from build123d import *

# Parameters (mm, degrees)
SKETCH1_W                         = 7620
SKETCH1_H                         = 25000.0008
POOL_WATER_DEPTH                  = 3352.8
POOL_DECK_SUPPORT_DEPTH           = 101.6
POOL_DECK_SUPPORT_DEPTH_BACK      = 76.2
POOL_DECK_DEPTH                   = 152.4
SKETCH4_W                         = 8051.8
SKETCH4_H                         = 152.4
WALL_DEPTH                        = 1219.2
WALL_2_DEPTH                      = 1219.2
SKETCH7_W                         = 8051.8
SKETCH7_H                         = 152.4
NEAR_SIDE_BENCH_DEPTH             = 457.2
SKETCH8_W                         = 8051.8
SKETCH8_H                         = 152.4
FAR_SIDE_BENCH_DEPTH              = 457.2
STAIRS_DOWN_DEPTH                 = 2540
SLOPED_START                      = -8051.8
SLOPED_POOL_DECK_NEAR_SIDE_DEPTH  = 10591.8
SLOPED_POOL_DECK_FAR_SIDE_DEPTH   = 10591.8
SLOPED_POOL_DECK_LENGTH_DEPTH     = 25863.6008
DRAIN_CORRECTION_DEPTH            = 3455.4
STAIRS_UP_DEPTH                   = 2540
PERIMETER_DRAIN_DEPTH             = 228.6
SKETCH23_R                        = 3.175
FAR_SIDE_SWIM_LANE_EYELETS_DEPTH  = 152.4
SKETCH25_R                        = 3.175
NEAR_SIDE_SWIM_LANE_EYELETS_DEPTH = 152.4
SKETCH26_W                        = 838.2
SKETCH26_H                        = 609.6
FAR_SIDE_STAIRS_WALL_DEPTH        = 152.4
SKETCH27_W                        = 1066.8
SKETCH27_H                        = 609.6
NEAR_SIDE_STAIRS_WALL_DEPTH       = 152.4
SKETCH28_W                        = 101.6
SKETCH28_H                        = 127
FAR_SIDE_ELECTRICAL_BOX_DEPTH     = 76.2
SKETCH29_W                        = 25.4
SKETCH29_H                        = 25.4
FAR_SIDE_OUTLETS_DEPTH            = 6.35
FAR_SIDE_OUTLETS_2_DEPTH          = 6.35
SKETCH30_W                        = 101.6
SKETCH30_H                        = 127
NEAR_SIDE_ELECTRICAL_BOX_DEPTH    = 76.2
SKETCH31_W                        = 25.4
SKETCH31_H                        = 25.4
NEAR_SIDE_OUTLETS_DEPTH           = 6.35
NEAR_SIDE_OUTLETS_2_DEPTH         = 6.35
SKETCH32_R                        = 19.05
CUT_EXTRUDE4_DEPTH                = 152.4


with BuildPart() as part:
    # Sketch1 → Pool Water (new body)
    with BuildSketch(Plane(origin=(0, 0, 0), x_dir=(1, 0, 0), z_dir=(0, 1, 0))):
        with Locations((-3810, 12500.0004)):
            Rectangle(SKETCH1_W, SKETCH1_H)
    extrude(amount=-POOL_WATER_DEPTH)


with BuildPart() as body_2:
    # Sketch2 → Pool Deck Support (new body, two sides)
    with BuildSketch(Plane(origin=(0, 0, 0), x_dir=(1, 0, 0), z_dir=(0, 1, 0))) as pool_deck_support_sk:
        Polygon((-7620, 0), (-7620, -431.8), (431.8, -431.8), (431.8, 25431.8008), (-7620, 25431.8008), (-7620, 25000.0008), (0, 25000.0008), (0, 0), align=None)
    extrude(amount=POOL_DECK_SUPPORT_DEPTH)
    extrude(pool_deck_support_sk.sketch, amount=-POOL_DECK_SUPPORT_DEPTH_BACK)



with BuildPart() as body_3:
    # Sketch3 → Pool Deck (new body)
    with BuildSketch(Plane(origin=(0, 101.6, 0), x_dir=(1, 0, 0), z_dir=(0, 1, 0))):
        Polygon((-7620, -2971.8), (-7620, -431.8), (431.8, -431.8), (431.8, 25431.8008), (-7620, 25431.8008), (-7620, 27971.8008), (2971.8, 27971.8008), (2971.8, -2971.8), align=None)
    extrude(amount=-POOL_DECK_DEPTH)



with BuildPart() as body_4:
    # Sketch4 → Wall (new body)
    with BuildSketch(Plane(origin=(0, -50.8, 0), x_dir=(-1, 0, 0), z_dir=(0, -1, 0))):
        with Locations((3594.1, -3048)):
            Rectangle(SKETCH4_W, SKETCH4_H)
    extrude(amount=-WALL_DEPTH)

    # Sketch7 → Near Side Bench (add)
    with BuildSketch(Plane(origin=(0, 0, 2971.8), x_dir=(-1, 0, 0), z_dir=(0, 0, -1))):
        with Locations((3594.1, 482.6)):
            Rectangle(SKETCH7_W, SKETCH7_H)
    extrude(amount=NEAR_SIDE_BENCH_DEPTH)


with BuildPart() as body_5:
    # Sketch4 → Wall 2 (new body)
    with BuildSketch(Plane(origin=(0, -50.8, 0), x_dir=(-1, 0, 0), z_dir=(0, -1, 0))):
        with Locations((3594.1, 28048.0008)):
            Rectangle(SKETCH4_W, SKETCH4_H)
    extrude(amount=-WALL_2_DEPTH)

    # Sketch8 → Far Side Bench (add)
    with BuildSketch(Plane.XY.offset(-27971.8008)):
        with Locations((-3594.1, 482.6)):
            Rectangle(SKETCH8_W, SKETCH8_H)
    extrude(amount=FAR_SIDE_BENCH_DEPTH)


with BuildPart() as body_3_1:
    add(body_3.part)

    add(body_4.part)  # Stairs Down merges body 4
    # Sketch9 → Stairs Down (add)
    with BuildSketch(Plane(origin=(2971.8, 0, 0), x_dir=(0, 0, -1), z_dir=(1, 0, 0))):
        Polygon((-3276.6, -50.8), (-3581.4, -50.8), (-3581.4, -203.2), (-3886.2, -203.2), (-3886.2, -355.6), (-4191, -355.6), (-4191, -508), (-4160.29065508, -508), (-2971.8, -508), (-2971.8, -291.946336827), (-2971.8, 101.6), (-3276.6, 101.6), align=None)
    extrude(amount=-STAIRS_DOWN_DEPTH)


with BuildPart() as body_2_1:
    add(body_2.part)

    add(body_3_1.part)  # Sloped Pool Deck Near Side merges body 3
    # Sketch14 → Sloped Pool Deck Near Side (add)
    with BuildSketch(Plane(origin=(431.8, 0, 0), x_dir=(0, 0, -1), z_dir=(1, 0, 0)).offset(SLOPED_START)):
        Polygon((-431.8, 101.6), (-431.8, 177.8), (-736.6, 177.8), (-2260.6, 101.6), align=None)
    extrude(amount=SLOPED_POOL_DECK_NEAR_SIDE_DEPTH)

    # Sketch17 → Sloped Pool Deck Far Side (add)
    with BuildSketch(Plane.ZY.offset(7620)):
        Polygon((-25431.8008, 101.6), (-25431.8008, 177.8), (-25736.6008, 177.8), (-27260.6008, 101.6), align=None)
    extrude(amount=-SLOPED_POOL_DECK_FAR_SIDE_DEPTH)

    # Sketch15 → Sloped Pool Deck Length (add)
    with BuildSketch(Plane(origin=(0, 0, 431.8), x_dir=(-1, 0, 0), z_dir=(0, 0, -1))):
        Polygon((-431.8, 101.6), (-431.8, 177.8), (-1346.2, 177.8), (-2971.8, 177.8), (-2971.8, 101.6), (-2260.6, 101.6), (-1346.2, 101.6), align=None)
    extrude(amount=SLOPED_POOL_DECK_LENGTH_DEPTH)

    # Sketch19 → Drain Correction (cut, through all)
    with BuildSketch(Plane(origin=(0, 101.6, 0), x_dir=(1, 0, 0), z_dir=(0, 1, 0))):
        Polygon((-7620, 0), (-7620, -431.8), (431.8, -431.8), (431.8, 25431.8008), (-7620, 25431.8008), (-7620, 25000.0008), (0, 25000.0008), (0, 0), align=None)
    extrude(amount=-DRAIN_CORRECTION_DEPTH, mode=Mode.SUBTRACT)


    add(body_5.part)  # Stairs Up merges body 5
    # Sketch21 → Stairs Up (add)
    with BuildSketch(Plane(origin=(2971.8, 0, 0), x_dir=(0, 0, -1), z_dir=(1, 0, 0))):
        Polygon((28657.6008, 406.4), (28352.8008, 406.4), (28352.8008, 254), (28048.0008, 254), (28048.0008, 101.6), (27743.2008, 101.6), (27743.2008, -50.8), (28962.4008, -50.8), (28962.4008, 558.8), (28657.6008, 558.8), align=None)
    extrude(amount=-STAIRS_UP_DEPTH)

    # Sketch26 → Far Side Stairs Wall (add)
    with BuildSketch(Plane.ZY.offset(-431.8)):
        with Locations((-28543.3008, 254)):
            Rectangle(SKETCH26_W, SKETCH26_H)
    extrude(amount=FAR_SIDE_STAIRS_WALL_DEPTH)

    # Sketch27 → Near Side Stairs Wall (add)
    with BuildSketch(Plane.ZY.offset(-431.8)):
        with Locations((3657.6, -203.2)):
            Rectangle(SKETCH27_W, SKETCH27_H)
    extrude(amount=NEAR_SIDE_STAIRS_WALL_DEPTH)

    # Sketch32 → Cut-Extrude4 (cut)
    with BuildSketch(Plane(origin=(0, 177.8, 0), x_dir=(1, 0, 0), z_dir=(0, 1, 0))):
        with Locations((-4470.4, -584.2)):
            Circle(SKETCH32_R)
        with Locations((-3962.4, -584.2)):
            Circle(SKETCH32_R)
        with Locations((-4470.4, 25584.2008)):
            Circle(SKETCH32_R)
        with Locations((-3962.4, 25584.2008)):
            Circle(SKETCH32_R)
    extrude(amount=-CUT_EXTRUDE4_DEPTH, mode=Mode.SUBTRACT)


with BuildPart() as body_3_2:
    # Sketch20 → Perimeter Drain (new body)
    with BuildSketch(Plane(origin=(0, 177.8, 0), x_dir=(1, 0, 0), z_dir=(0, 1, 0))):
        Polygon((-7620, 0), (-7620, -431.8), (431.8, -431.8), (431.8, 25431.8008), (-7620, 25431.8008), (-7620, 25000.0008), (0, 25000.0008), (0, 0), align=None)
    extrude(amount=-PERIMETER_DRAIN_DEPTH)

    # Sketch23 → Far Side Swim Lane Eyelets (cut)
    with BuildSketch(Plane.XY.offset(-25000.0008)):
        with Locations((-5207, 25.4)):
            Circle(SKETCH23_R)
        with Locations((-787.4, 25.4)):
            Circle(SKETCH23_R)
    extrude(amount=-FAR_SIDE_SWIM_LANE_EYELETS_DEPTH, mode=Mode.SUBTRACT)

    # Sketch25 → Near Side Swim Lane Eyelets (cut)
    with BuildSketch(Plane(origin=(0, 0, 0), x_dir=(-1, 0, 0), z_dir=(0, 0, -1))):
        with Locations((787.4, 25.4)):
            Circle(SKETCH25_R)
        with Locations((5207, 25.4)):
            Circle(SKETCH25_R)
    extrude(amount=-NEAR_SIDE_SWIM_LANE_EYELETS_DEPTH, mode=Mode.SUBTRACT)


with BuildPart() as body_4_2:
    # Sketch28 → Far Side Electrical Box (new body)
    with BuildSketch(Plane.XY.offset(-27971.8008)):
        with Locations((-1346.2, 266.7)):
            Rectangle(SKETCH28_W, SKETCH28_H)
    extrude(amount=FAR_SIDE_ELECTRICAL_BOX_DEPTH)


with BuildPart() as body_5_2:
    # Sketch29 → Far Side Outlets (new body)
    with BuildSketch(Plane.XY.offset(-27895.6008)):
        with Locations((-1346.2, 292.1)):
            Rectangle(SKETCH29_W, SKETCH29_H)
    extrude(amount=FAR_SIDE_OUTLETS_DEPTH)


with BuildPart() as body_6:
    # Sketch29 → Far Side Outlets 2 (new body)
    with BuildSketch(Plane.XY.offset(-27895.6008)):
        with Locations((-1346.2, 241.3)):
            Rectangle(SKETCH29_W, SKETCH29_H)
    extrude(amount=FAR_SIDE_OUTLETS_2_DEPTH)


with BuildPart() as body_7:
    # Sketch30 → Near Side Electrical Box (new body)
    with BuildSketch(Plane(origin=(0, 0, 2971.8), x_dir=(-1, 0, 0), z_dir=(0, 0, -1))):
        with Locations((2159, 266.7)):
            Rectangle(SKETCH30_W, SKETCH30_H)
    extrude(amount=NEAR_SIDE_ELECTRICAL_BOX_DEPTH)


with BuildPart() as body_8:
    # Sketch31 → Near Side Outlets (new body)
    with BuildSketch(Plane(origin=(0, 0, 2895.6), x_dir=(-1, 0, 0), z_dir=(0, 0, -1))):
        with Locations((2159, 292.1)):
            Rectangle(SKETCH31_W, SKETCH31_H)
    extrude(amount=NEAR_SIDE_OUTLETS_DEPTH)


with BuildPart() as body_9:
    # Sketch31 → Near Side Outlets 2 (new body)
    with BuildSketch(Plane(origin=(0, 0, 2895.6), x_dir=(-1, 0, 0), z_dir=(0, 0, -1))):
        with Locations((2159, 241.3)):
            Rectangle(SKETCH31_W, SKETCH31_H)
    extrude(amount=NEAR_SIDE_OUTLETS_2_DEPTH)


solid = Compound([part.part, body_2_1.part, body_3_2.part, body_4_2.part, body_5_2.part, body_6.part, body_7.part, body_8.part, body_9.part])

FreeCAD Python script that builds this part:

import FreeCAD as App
import Part
import Sketcher
from FreeCAD import Vector
Q = App.Units.Quantity


def add_polygon(sketch, points):
    """Adds a closed chain of lines whose ends are joined by coincident constraints."""
    first, n = sketch.GeometryCount, len(points)
    for a, b in zip(points, points[1:] + points[:1]):
        sketch.addGeometry(Part.LineSegment(App.Vector(*a, 0), App.Vector(*b, 0)), False)
    for i in range(n):
        sketch.addConstraint(Sketcher.Constraint("Coincident", first + i, 2, first + (i + 1) % n, 1))

doc = App.newDocument("Part")
body = doc.addObject("PartDesign::Body", "Body")

# Sketch on XZ plane
sketch1 = body.newObject("Sketcher::SketchObject", "Sketch")
sketch1.AttachmentSupport = (doc.getObject("XZ_Plane"), [""])
sketch1.MapMode = "FlatFace"
add_polygon(sketch1, [(-7620, -25000.0008), (-7620, 0), (0, 0), (0, -25000.0008)])  # lines 0-3
sketch1.addConstraint([
    Sketcher.Constraint("Vertical", 0),
    Sketcher.Constraint("Horizontal", 1),
    Sketcher.Constraint("Vertical", 2),
    Sketcher.Constraint("Horizontal", 3),
    Sketcher.Constraint("Coincident", 1, 2, -1, 1),
    Sketcher.Constraint("DistanceX", 1, 1, 1, 2, Q("300 in")),
    Sketcher.Constraint("DistanceY", 0, 1, 0, 2, Q("984.252 in")),
])
pad1 = body.newObject("PartDesign::Pad", "Pad")
pad1.Profile = sketch1
pad1.Length = Q("132 in")
body2 = doc.addObject("PartDesign::Body", "Body001")

# Sketch on XZ plane
sketch2 = body2.newObject("Sketcher::SketchObject", "Sketch001")
sketch2.AttachmentSupport = (doc.getObject("XZ_Plane001"), [""])
sketch2.MapMode = "FlatFace"
add_polygon(sketch2, [(-7620, 0), (-7620, 432), (432, 432), (432, -25432), (-7620, -25432), (-7620, -25000), (0, -25000), (0, 0)])  # lines 0-7
sketch2.addConstraint([
    Sketcher.Constraint("Vertical", 0),
    Sketcher.Constraint("Horizontal", 1),
    Sketcher.Constraint("Vertical", 2),
    Sketcher.Constraint("Horizontal", 3),
    Sketcher.Constraint("Vertical", 4),
    Sketcher.Constraint("Horizontal", 5),
    Sketcher.Constraint("Vertical", 6),
    Sketcher.Constraint("Horizontal", 7),
    Sketcher.Constraint("Coincident", 6, 2, -1, 1),
    Sketcher.Constraint("Vertical", 0, 2, 3, 2),
    Sketcher.Constraint("Equal", 0, 4),
    Sketcher.Constraint("DistanceX", 1, 1, 1, 2, Q("317 in")),
    Sketcher.Constraint("DistanceX", 5, 1, 5, 2, Q("300 in")),
    Sketcher.Constraint("DistanceY", 0, 1, 0, 2, Q("17 in")),
    Sketcher.Constraint("DistanceY", 2, 2, 2, 1, Q("1018.252 in")),
])
pad2 = body2.newObject("PartDesign::Pad", "Pad001")
pad2.Profile = sketch2
pad2.Type = "TwoLengths"
pad2.Length = Q("4 in")
pad2.Length2 = Q("3 in")
pad2.Reversed = True
body3 = doc.addObject("PartDesign::Body", "Body002")

# Sketch on XZ plane
sketch3 = body3.newObject("Sketcher::SketchObject", "Sketch002")
sketch3.AttachmentSupport = (doc.getObject("XZ_Plane002"), [""])
sketch3.MapMode = "FlatFace"
sketch3.AttachmentOffset = App.Placement(Vector(0, 0, -4 * 25.4), App.Rotation())
add_polygon(sketch3, [(-7620, 432), (-7620, 2972), (2972, 2972), (2972, -27972), (-7620, -27972), (-7620, -25432), (432, -25432), (432, 432)])  # lines 0-7
sketch3.addConstraint([
    Sketcher.Constraint("Vertical", 0),
    Sketcher.Constraint("Horizontal", 1),
    Sketcher.Constraint("Vertical", 2),
    Sketcher.Constraint("Horizontal", 3),
    Sketcher.Constraint("Vertical", 4),
    Sketcher.Constraint("Horizontal", 5),
    Sketcher.Constraint("Vertical", 6),
    Sketcher.Constraint("Horizontal", 7),
    Sketcher.Constraint("Vertical", 0, 2, 3, 2),
    Sketcher.Constraint("Equal", 0, 4),
    Sketcher.Constraint("DistanceX", 1, 1, 1, 2, Q("417 in")),
    Sketcher.Constraint("DistanceX", 5, 1, 5, 2, Q("317 in")),
    Sketcher.Constraint("DistanceY", 0, 1, 0, 2, Q("100 in")),
    Sketcher.Constraint("DistanceX", 0, 2, -1, 1, Q("300 in")),
    Sketcher.Constraint("DistanceY", -1, 1, 0, 2, Q("117 in")),
    Sketcher.Constraint("DistanceY", 2, 2, 2, 1, Q("1218.252 in")),
])
pad3 = body3.newObject("PartDesign::Pad", "Pad002")
pad3.Profile = sketch3
pad3.Length = Q("6 in")
body4 = doc.addObject("PartDesign::Body", "Body003")

# Sketch on XZ plane
sketch4 = body4.newObject("Sketcher::SketchObject", "Sketch003")
sketch4.AttachmentSupport = (doc.getObject("XZ_Plane003"), [""])
sketch4.MapMode = "FlatFace"
sketch4.AttachmentOffset = App.Placement(Vector(0, 0, 2 * 25.4), App.Rotation())
add_polygon(sketch4, [(432, 2972), (432, 3124), (-7620, 3124), (-7620, 2972)])  # lines 0-3
sketch4.addConstraint([
    Sketcher.Constraint("Vertical", 0),
    Sketcher.Constraint("Horizontal", 1),
    Sketcher.Constraint("Vertical", 2),
    Sketcher.Constraint("Horizontal", 3),
    Sketcher.Constraint("DistanceX", 1, 2, 1, 1, Q("317 in")),
    Sketcher.Constraint("DistanceY", 0, 1, 0, 2, Q("6 in")),
    Sketcher.Constraint("DistanceX", -1, 1, 0, 2, Q("17 in")),
    Sketcher.Constraint("DistanceY", -1, 1, 0, 2, Q("123 in")),
])
pad4 = body4.newObject("PartDesign::Pad", "Pad003")
pad4.Profile = sketch4
pad4.Length = Q("48 in")
pad4.Reversed = True

# Sketch on XY plane
sketch5 = body4.newObject("Sketcher::SketchObject", "Sketch004")
sketch5.AttachmentSupport = (doc.getObject("XY_Plane003"), [""])
sketch5.MapMode = "FlatFace"
sketch5.AttachmentOffset = App.Placement(Vector(0, 0, 117 * 25.4), App.Rotation())
add_polygon(sketch5, [(432, 559), (432, 406), (-7620, 406), (-7620, 559)])  # lines 0-3
sketch5.addConstraint([
    Sketcher.Constraint("Vertical", 0),
    Sketcher.Constraint("Horizontal", 1),
    Sketcher.Constraint("Vertical", 2),
    Sketcher.Constraint("Horizontal", 3),
    Sketcher.Constraint("DistanceX", 1, 2, 1, 1, Q("317 in")),
    Sketcher.Constraint("DistanceY", 0, 2, 0, 1, Q("6 in")),
    Sketcher.Constraint("DistanceX", -1, 1, 0, 2, Q("17 in")),
    Sketcher.Constraint("DistanceY", -1, 1, 0, 2, Q("16 in")),
])
pad5 = body4.newObject("PartDesign::Pad", "Pad004")
pad5.Profile = sketch5
pad5.Length = Q("18 in")
pad5.Reversed = True
body5 = doc.addObject("PartDesign::Body", "Body004")

# Sketch on XZ plane
sketch6 = body5.newObject("Sketcher::SketchObject", "Sketch005")
sketch6.AttachmentSupport = (doc.getObject("XZ_Plane004"), [""])
sketch6.MapMode = "FlatFace"
sketch6.AttachmentOffset = App.Placement(Vector(0, 0, 2 * 25.4), App.Rotation())
add_polygon(sketch6, [(432, -28124), (432, -27972), (-7620, -27972), (-7620, -28124)])  # lines 0-3
sketch6.addConstraint([
    Sketcher.Constraint("Vertical", 0),
    Sketcher.Constraint("Horizontal", 1),
    Sketcher.Constraint("Vertical", 2),
    Sketcher.Constraint("Horizontal", 3),
    Sketcher.Constraint("DistanceX", 1, 2, 1, 1, Q("317 in")),
    Sketcher.Constraint("DistanceY", 0, 1, 0, 2, Q("6 in")),
    Sketcher.Constraint("DistanceX", -1, 1, 0, 2, Q("17 in")),
    Sketcher.Constraint("DistanceY", 0, 2, -1, 1, Q("1101.252 in")),
])
pad6 = body5.newObject("PartDesign::Pad", "Pad005")
pad6.Profile = sketch6
pad6.Length = Q("48 in")
pad6.Reversed = True

# Sketch on XY plane
sketch7 = body5.newObject("Sketcher::SketchObject", "Sketch006")
sketch7.AttachmentSupport = (doc.getObject("XY_Plane004"), [""])
sketch7.MapMode = "FlatFace"
sketch7.AttachmentOffset = App.Placement(Vector(0, 0, -1101.252 * 25.4), App.Rotation())
add_polygon(sketch7, [(-7620, 559), (-7620, 406), (432, 406), (432, 559)])  # lines 0-3
sketch7.addConstraint([
    Sketcher.Constraint("Vertical", 0),
    Sketcher.Constraint("Horizontal", 1),
    Sketcher.Constraint("Vertical", 2),
    Sketcher.Constraint("Horizontal", 3),
    Sketcher.Constraint("DistanceX", 1, 1, 1, 2, Q("317 in")),
    Sketcher.Constraint("DistanceY", 0, 2, 0, 1, Q("6 in")),
    Sketcher.Constraint("DistanceX", 0, 2, -1, 1, Q("300 in")),
    Sketcher.Constraint("DistanceY", -1, 1, 0, 2, Q("16 in")),
])
pad7 = body5.newObject("PartDesign::Pad", "Pad006")
pad7.Profile = sketch7
pad7.Length = Q("18 in")
doc.recompute()

boolean = body3.newObject("PartDesign::Boolean", "Boolean")
boolean.Type = "Fuse"
boolean.addObjects([body4])

# Sketch on YZ plane
sketch8 = body3.newObject("Sketcher::SketchObject", "Sketch007")
sketch8.AttachmentSupport = (doc.getObject("YZ_Plane002"), [""])
sketch8.MapMode = "FlatFace"
sketch8.AttachmentOffset = App.Placement(Vector(0, 0, 117 * 25.4), App.Rotation())
add_polygon(sketch8, [(-51, 3277), (-51, 3581), (-203, 3581), (-203, 3886), (-356, 3886), (-356, 4191), (-508, 4191), (-508, 2972), (102, 2972), (102, 3277)])  # lines 0-9
sketch8.addConstraint([
    Sketcher.Constraint("Vertical", 0),
    Sketcher.Constraint("Horizontal", 1),
    Sketcher.Constraint("Vertical", 2),
    Sketcher.Constraint("Horizontal", 3),
    Sketcher.Constraint("Vertical", 4),
    Sketcher.Constraint("Horizontal", 5),
    Sketcher.Constraint("Vertical", 6),
    Sketcher.Constraint("Horizontal", 7),
    Sketcher.Constraint("Vertical", 8),
    Sketcher.Constraint("Horizontal", 9),
    Sketcher.Constraint("Equal", 1, 3),
    Sketcher.Constraint("Equal", 3, 5),
    Sketcher.Constraint("Equal", 5, 9),
    Sketcher.Constraint("Equal", 0, 2),
    Sketcher.Constraint("Equal", 2, 4),
    Sketcher.Constraint("Equal", 4, 8),
    Sketcher.Constraint("DistanceX", 1, 2, 1, 1, Q("6 in")),
    Sketcher.Constraint("DistanceY", 0, 1, 0, 2, Q("12 in")),
    Sketcher.Constraint("DistanceX", 0, 2, -1, 1, Q("2 in")),
    Sketcher.Constraint("DistanceY", -1, 1, 0, 2, Q("141 in")),
])
pad8 = body3.newObject("PartDesign::Pad", "Pad007")
pad8.Profile = sketch8
pad8.Length = Q("100 in")
pad8.Reversed = True
doc.recompute()

boolean2 = body2.newObject("PartDesign::Boolean", "Boolean001")
boolean2.Type = "Fuse"
boolean2.addObjects([body3])

# Sketch on YZ plane
sketch9 = body2.newObject("Sketcher::SketchObject", "Sketch008")
sketch9.AttachmentSupport = (doc.getObject("YZ_Plane001"), [""])
sketch9.MapMode = "FlatFace"
sketch9.AttachmentOffset = App.Placement(Vector(0, 0, -300 * 25.4), App.Rotation())
add_polygon(sketch9, [(102, 432), (178, 432), (178, 737), (102, 2261)])  # lines 0-3
sketch9.addConstraint([
    Sketcher.Constraint("Horizontal", 0),
    Sketcher.Constraint("Vertical", 1),
    Sketcher.Constraint("Vertical", 3),
    Sketcher.Constraint("DistanceX", 0, 1, 0, 2, Q("3 in")),
    Sketcher.Constraint("DistanceY", 1, 1, 1, 2, Q("12 in")),
    Sketcher.Constraint("DistanceY", 3, 2, 3, 1, Q("72 in")),
    Sketcher.Constraint("DistanceX", -1, 1, 0, 2, Q("7 in")),
    Sketcher.Constraint("DistanceY", -1, 1, 0, 2, Q("17 in")),
])
pad9 = body2.newObject("PartDesign::Pad", "Pad008")
pad9.Profile = sketch9
pad9.Length = Q("417 in")

# Sketch on YZ plane
sketch10 = body2.newObject("Sketcher::SketchObject", "Sketch009")
sketch10.AttachmentSupport = (doc.getObject("YZ_Plane001"), [""])
sketch10.MapMode = "FlatFace"
sketch10.AttachmentOffset = App.Placement(Vector(0, 0, -300 * 25.4), App.Rotation())
add_polygon(sketch10, [(102, -25432), (178, -25432), (178, -25737), (102, -27261)])  # lines 0-3
sketch10.addConstraint([
    Sketcher.Constraint("Horizontal", 0),
    Sketcher.Constraint("Vertical", 1),
    Sketcher.Constraint("Vertical", 3),
    Sketcher.Constraint("DistanceX", 0, 1, 0, 2, Q("3 in")),
    Sketcher.Constraint("DistanceY", 1, 2, 1, 1, Q("12 in")),
    Sketcher.Constraint("DistanceY", 3, 1, 3, 2, Q("72 in")),
    Sketcher.Constraint("DistanceX", -1, 1, 0, 2, Q("7 in")),
    Sketcher.Constraint("DistanceY", 0, 2, -1, 1, Q("1001.252 in")),
])
pad10 = body2.newObject("PartDesign::Pad", "Pad009")
pad10.Profile = sketch10
pad10.Length = Q("417 in")

# Sketch on XY plane
sketch11 = body2.newObject("Sketcher::SketchObject", "Sketch010")
sketch11.AttachmentSupport = (doc.getObject("XY_Plane001"), [""])
sketch11.MapMode = "FlatFace"
sketch11.AttachmentOffset = App.Placement(Vector(0, 0, 17 * 25.4), App.Rotation())
add_polygon(sketch11, [(432, 102), (432, 178), (2972, 178), (2972, 102)])  # lines 0-3
sketch11.addConstraint([
    Sketcher.Constraint("Vertical", 0),
    Sketcher.Constraint("Horizontal", 1),
    Sketcher.Constraint("Vertical", 2),
    Sketcher.Constraint("Horizontal", 3),
    Sketcher.Constraint("DistanceX", 1, 1, 1, 2, Q("100 in")),
    Sketcher.Constraint("DistanceY", 0, 1, 0, 2, Q("3 in")),
    Sketcher.Constraint("DistanceX", -1, 1, 0, 2, Q("17 in")),
    Sketcher.Constraint("DistanceY", -1, 1, 0, 2, Q("7 in")),
])
pad11 = body2.newObject("PartDesign::Pad", "Pad010")
pad11.Profile = sketch11
pad11.Length = Q("1018.252 in")
pad11.Reversed = True

# Sketch on XZ plane
sketch12 = body2.newObject("Sketcher::SketchObject", "Sketch011")
sketch12.AttachmentSupport = (doc.getObject("XZ_Plane001"), [""])
sketch12.MapMode = "FlatFace"
sketch12.AttachmentOffset = App.Placement(Vector(0, 0, -4 * 25.4), App.Rotation())
add_polygon(sketch12, [(-7620, 0), (-7620, 432), (432, 432), (432, -25432), (-7620, -25432), (-7620, -25000), (0, -25000), (0, 0)])  # lines 0-7
sketch12.addConstraint([
    Sketcher.Constraint("Vertical", 0),
    Sketcher.Constraint("Horizontal", 1),
    Sketcher.Constraint("Vertical", 2),
    Sketcher.Constraint("Horizontal", 3),
    Sketcher.Constraint("Vertical", 4),
    Sketcher.Constraint("Horizontal", 5),
    Sketcher.Constraint("Vertical", 6),
    Sketcher.Constraint("Horizontal", 7),
    Sketcher.Constraint("Coincident", 6, 2, -1, 1),
    Sketcher.Constraint("Vertical", 0, 2, 3, 2),
    Sketcher.Constraint("Equal", 0, 4),
    Sketcher.Constraint("DistanceX", 1, 1, 1, 2, Q("317 in")),
    Sketcher.Constraint("DistanceX", 5, 1, 5, 2, Q("300 in")),
    Sketcher.Constraint("DistanceY", 0, 1, 0, 2, Q("17 in")),
    Sketcher.Constraint("DistanceY", 2, 2, 2, 1, Q("1018.252 in")),
])
pocket1 = body2.newObject("PartDesign::Pocket", "Pocket")
pocket1.Profile = sketch12
pocket1.Type = "ThroughAll"
pocket1.Reversed = True
doc.recompute()

boolean3 = body2.newObject("PartDesign::Boolean", "Boolean002")
boolean3.Type = "Fuse"
boolean3.addObjects([body5])

# Sketch on YZ plane
sketch13 = body2.newObject("Sketcher::SketchObject", "Sketch012")
sketch13.AttachmentSupport = (doc.getObject("YZ_Plane001"), [""])
sketch13.MapMode = "FlatFace"
sketch13.AttachmentOffset = App.Placement(Vector(0, 0, 117 * 25.4), App.Rotation())
add_polygon(sketch13, [(406, -28658), (406, -28353), (254, -28353), (254, -28048), (102, -28048), (102, -27743), (-51, -27743), (-51, -28962), (559, -28962), (559, -28658)])  # lines 0-9
sketch13.addConstraint([
    Sketcher.Constraint("Vertical", 0),
    Sketcher.Constraint("Horizontal", 1),
    Sketcher.Constraint("Vertical", 2),
    Sketcher.Constraint("Horizontal", 3),
    Sketcher.Constraint("Vertical", 4),
    Sketcher.Constraint("Horizontal", 5),
    Sketcher.Constraint("Vertical", 6),
    Sketcher.Constraint("Horizontal", 7),
    Sketcher.Constraint("Vertical", 8),
    Sketcher.Constraint("Horizontal", 9),
    Sketcher.Constraint("Equal", 1, 3),
    Sketcher.Constraint("Equal", 3, 5),
    Sketcher.Constraint("Equal", 5, 9),
    Sketcher.Constraint("Equal", 0, 2),
    Sketcher.Constraint("Equal", 2, 4),
    Sketcher.Constraint("Equal", 4, 8),
    Sketcher.Constraint("DistanceX", 1, 2, 1, 1, Q("6 in")),
    Sketcher.Constraint("DistanceY", 0, 1, 0, 2, Q("12 in")),
    Sketcher.Constraint("DistanceX", -1, 1, 0, 2, Q("16 in")),
    Sketcher.Constraint("DistanceY", 0, 2, -1, 1, Q("1116.252 in")),
])
pad12 = body2.newObject("PartDesign::Pad", "Pad011")
pad12.Profile = sketch13
pad12.Length = Q("100 in")
pad12.Reversed = True

# Sketch on YZ plane
sketch14 = body2.newObject("Sketcher::SketchObject", "Sketch013")
sketch14.AttachmentSupport = (doc.getObject("YZ_Plane001"), [""])
sketch14.MapMode = "FlatFace"
sketch14.AttachmentOffset = App.Placement(Vector(0, 0, 17 * 25.4), App.Rotation())
add_polygon(sketch14, [(559, -28962), (-51, -28962), (-51, -28124), (559, -28124)])  # lines 0-3
sketch14.addConstraint([
    Sketcher.Constraint("Horizontal", 0),
    Sketcher.Constraint("Vertical", 1),
    Sketcher.Constraint("Horizontal", 2),
    Sketcher.Constraint("Vertical", 3),
    Sketcher.Constraint("DistanceX", 0, 2, 0, 1, Q("24 in")),
    Sketcher.Constraint("DistanceY", 1, 1, 1, 2, Q("33 in")),
    Sketcher.Constraint("DistanceX", 0, 2, -1, 1, Q("2 in")),
    Sketcher.Constraint("DistanceY", 0, 2, -1, 1, Q("1140.252 in")),
])
pad13 = body2.newObject("PartDesign::Pad", "Pad012")
pad13.Profile = sketch14
pad13.Length = Q("6 in")
pad13.Reversed = True

# Sketch on YZ plane
sketch15 = body2.newObject("Sketcher::SketchObject", "Sketch014")
sketch15.AttachmentSupport = (doc.getObject("YZ_Plane001"), [""])
sketch15.MapMode = "FlatFace"
sketch15.AttachmentOffset = App.Placement(Vector(0, 0, 17 * 25.4), App.Rotation())
add_polygon(sketch15, [(102, 3124), (-508, 3124), (-508, 4191), (102, 4191)])  # lines 0-3
sketch15.addConstraint([
    Sketcher.Constraint("Horizontal", 0),
    Sketcher.Constraint("Vertical", 1),
    Sketcher.Constraint("Horizontal", 2),
    Sketcher.Constraint("Vertical", 3),
    Sketcher.Constraint("DistanceX", 0, 2, 0, 1, Q("24 in")),
    Sketcher.Constraint("DistanceY", 1, 1, 1, 2, Q("42 in")),
    Sketcher.Constraint("DistanceX", 0, 2, -1, 1, Q("20 in")),
    Sketcher.Constraint("DistanceY", -1, 1, 0, 2, Q("123 in")),
])
pad14 = body2.newObject("PartDesign::Pad", "Pad013")
pad14.Profile = sketch15
pad14.Length = Q("6 in")
pad14.Reversed = True

# Sketch on XZ plane
sketch16 = body2.newObject("Sketcher::SketchObject", "Sketch015")
sketch16.AttachmentSupport = (doc.getObject("XZ_Plane001"), [""])
sketch16.MapMode = "FlatFace"
sketch16.AttachmentOffset = App.Placement(Vector(0, 0, -7 * 25.4), App.Rotation())
sketch16.addGeometry([
    Part.Circle(Vector(-4470, 584, 0), Vector(0, 0, 1), 19),
    Part.Circle(Vector(-3962, 584, 0), Vector(0, 0, 1), 19),
    Part.Circle(Vector(-4470, -25584, 0), Vector(0, 0, 1), 19),
    Part.Circle(Vector(-3962, -25584, 0), Vector(0, 0, 1), 19),
], False)
sketch16.addConstraint([
    Sketcher.Constraint("Equal", 0, 1),
    Sketcher.Constraint("Equal", 1, 2),
    Sketcher.Constraint("Equal", 2, 3),
    Sketcher.Constraint("Horizontal", 0, 3, 1, 3),
    Sketcher.Constraint("Horizontal", 2, 3, 3, 3),
    Sketcher.Constraint("Vertical", 0, 3, 2, 3),
    Sketcher.Constraint("Vertical", 1, 3, 3, 3),
    Sketcher.Constraint("Diameter", 0, Q("1.5 in")),
    Sketcher.Constraint("DistanceX", 0, 3, -1, 1, Q("176 in")),
    Sketcher.Constraint("DistanceY", -1, 1, 0, 3, Q("23 in")),
    Sketcher.Constraint("DistanceX", 1, 3, -1, 1, Q("156 in")),
    Sketcher.Constraint("DistanceY", 2, 3, -1, 1, Q("1007.252 in")),
])
pocket2 = body2.newObject("PartDesign::Pocket", "Pocket001")
pocket2.Profile = sketch16
pocket2.Length = Q("6 in")
pocket2.Reversed = True
body6 = doc.addObject("PartDesign::Body", "Body005")

# Sketch on XZ plane
sketch17 = body6.newObject("Sketcher::SketchObject", "Sketch016")
sketch17.AttachmentSupport = (doc.getObject("XZ_Plane005"), [""])
sketch17.MapMode = "FlatFace"
sketch17.AttachmentOffset = App.Placement(Vector(0, 0, -7 * 25.4), App.Rotation())
add_polygon(sketch17, [(-7620, 0), (-7620, 432), (432, 432), (432, -25432), (-7620, -25432), (-7620, -25000), (0, -25000), (0, 0)])  # lines 0-7
sketch17.addConstraint([
    Sketcher.Constraint("Vertical", 0),
    Sketcher.Constraint("Horizontal", 1),
    Sketcher.Constraint("Vertical", 2),
    Sketcher.Constraint("Horizontal", 3),
    Sketcher.Constraint("Vertical", 4),
    Sketcher.Constraint("Horizontal", 5),
    Sketcher.Constraint("Vertical", 6),
    Sketcher.Constraint("Horizontal", 7),
    Sketcher.Constraint("Coincident", 6, 2, -1, 1),
    Sketcher.Constraint("Vertical", 0, 2, 3, 2),
    Sketcher.Constraint("Equal", 0, 4),
    Sketcher.Constraint("DistanceX", 1, 1, 1, 2, Q("317 in")),
    Sketcher.Constraint("DistanceX", 5, 1, 5, 2, Q("300 in")),
    Sketcher.Constraint("DistanceY", 0, 1, 0, 2, Q("17 in")),
    Sketcher.Constraint("DistanceY", 2, 2, 2, 1, Q("1018.252 in")),
])
pad15 = body6.newObject("PartDesign::Pad", "Pad014")
pad15.Profile = sketch17
pad15.Length = Q("9 in")

# Sketch on XY plane
sketch18 = body6.newObject("Sketcher::SketchObject", "Sketch017")
sketch18.AttachmentSupport = (doc.getObject("XY_Plane005"), [""])
sketch18.MapMode = "FlatFace"
sketch18.AttachmentOffset = App.Placement(Vector(0, 0, -984.252 * 25.4), App.Rotation())
sketch18.addGeometry([
    Part.Circle(Vector(-5207, 25.4, 0), Vector(0, 0, 1), 3.2),
    Part.Circle(Vector(-787.4, 25.4, 0), Vector(0, 0, 1), 3.2),
], False)
sketch18.addConstraint([
    Sketcher.Constraint("Equal", 0, 1),
    Sketcher.Constraint("Horizontal", 0, 3, 1, 3),
    Sketcher.Constraint("Diameter", 0, Q("0.25 in")),
    Sketcher.Constraint("DistanceX", 0, 3, -1, 1, Q("205 in")),
    Sketcher.Constraint("DistanceY", -1, 1, 0, 3, Q("1 in")),
    Sketcher.Constraint("DistanceX", 1, 3, -1, 1, Q("31 in")),
])
pocket3 = body6.newObject("PartDesign::Pocket", "Pocket002")
pocket3.Profile = sketch18
pocket3.Length = Q("6 in")

# Sketch on XY plane
sketch19 = body6.newObject("Sketcher::SketchObject", "Sketch018")
sketch19.AttachmentSupport = (doc.getObject("XY_Plane005"), [""])
sketch19.MapMode = "FlatFace"
sketch19.addGeometry([
    Part.Circle(Vector(-787.4, 25.4, 0), Vector(0, 0, 1), 3.2),
    Part.Circle(Vector(-5207, 25.4, 0), Vector(0, 0, 1), 3.2),
], False)
sketch19.addConstraint([
    Sketcher.Constraint("Equal", 0, 1),
    Sketcher.Constraint("Horizontal", 0, 3, 1, 3),
    Sketcher.Constraint("Diameter", 0, Q("0.25 in")),
    Sketcher.Constraint("DistanceX", 0, 3, -1, 1, Q("31 in")),
    Sketcher.Constraint("DistanceY", -1, 1, 0, 3, Q("1 in")),
    Sketcher.Constraint("DistanceX", 1, 3, -1, 1, Q("205 in")),
])
pocket4 = body6.newObject("PartDesign::Pocket", "Pocket003")
pocket4.Profile = sketch19
pocket4.Length = Q("6 in")
pocket4.Reversed = True
body7 = doc.addObject("PartDesign::Body", "Body006")

# Sketch on XY plane
sketch20 = body7.newObject("Sketcher::SketchObject", "Sketch019")
sketch20.AttachmentSupport = (doc.getObject("XY_Plane006"), [""])
sketch20.MapMode = "FlatFace"
sketch20.AttachmentOffset = App.Placement(Vector(0, 0, -1101.252 * 25.4), App.Rotation())
add_polygon(sketch20, [(-1397, 330), (-1397, 203), (-1295, 203), (-1295, 330)])  # lines 0-3
sketch20.addConstraint([
    Sketcher.Constraint("Vertical", 0),
    Sketcher.Constraint("Horizontal", 1),
    Sketcher.Constraint("Vertical", 2),
    Sketcher.Constraint("Horizontal", 3),
    Sketcher.Constraint("DistanceX", 1, 1, 1, 2, Q("4 in")),
    Sketcher.Constraint("DistanceY", 0, 2, 0, 1, Q("5 in")),
    Sketcher.Constraint("DistanceX", 0, 2, -1, 1, Q("55 in")),
    Sketcher.Constraint("DistanceY", -1, 1, 0, 2, Q("8 in")),
])
pad16 = body7.newObject("PartDesign::Pad", "Pad015")
pad16.Profile = sketch20
pad16.Length = Q("3 in")
body8 = doc.addObject("PartDesign::Body", "Body007")

# Sketch on XY plane
sketch21 = body8.newObject("Sketcher::SketchObject", "Sketch020")
sketch21.AttachmentSupport = (doc.getObject("XY_Plane007"), [""])
sketch21.MapMode = "FlatFace"
sketch21.AttachmentOffset = App.Placement(Vector(0, 0, -1098.252 * 25.4), App.Rotation())
add_polygon(sketch21, [(-1359, 305), (-1359, 279), (-1334, 279), (-1334, 305)])  # lines 0-3
sketch21.addConstraint([
    Sketcher.Constraint("Vertical", 0),
    Sketcher.Constraint("Horizontal", 1),
    Sketcher.Constraint("Vertical", 2),
    Sketcher.Constraint("Horizontal", 3),
    Sketcher.Constraint("Equal", 3, 0),
    Sketcher.Constraint("DistanceX", 1, 1, 1, 2, Q("1 in")),
    Sketcher.Constraint("DistanceY", -1, 1, 0, 2, Q("11 in")),
    Sketcher.Constraint("DistanceX", 0, 2, -1, 1, Q("53.5 in")),
])
pad17 = body8.newObject("PartDesign::Pad", "Pad016")
pad17.Profile = sketch21
pad17.Length = Q("0.25 in")
body9 = doc.addObject("PartDesign::Body", "Body008")

# Sketch on XY plane
sketch22 = body9.newObject("Sketcher::SketchObject", "Sketch021")
sketch22.AttachmentSupport = (doc.getObject("XY_Plane008"), [""])
sketch22.MapMode = "FlatFace"
sketch22.AttachmentOffset = App.Placement(Vector(0, 0, -1098.252 * 25.4), App.Rotation())
add_polygon(sketch22, [(-1359, 254), (-1359, 229), (-1334, 229), (-1334, 254)])  # lines 0-3
sketch22.addConstraint([
    Sketcher.Constraint("Vertical", 0),
    Sketcher.Constraint("Horizontal", 1),
    Sketcher.Constraint("Vertical", 2),
    Sketcher.Constraint("Horizontal", 3),
    Sketcher.Constraint("Equal", 3, 0),
    Sketcher.Constraint("DistanceX", 1, 1, 1, 2, Q("1 in")),
    Sketcher.Constraint("DistanceY", -1, 1, 0, 2, Q("9 in")),
    Sketcher.Constraint("DistanceX", 0, 2, -1, 1, Q("53.5 in")),
])
pad18 = body9.newObject("PartDesign::Pad", "Pad017")
pad18.Profile = sketch22
pad18.Length = Q("0.25 in")
body10 = doc.addObject("PartDesign::Body", "Body009")

# Sketch on XY plane
sketch23 = body10.newObject("Sketcher::SketchObject", "Sketch022")
sketch23.AttachmentSupport = (doc.getObject("XY_Plane009"), [""])
sketch23.MapMode = "FlatFace"
sketch23.AttachmentOffset = App.Placement(Vector(0, 0, 117 * 25.4), App.Rotation())
add_polygon(sketch23, [(-2108, 330), (-2108, 203), (-2210, 203), (-2210, 330)])  # lines 0-3
sketch23.addConstraint([
    Sketcher.Constraint("Vertical", 0),
    Sketcher.Constraint("Horizontal", 1),
    Sketcher.Constraint("Vertical", 2),
    Sketcher.Constraint("Horizontal", 3),
    Sketcher.Constraint("DistanceX", 1, 2, 1, 1, Q("4 in")),
    Sketcher.Constraint("DistanceY", 0, 2, 0, 1, Q("5 in")),
    Sketcher.Constraint("DistanceX", 0, 2, -1, 1, Q("83 in")),
    Sketcher.Constraint("DistanceY", -1, 1, 0, 2, Q("8 in")),
])
pad19 = body10.newObject("PartDesign::Pad", "Pad018")
pad19.Profile = sketch23
pad19.Length = Q("3 in")
pad19.Reversed = True
body11 = doc.addObject("PartDesign::Body", "Body010")

# Sketch on XY plane
sketch24 = body11.newObject("Sketcher::SketchObject", "Sketch023")
sketch24.AttachmentSupport = (doc.getObject("XY_Plane010"), [""])
sketch24.MapMode = "FlatFace"
sketch24.AttachmentOffset = App.Placement(Vector(0, 0, 114 * 25.4), App.Rotation())
add_polygon(sketch24, [(-2146, 305), (-2146, 279), (-2172, 279), (-2172, 305)])  # lines 0-3
sketch24.addConstraint([
    Sketcher.Constraint("Vertical", 0),
    Sketcher.Constraint("Horizontal", 1),
    Sketcher.Constraint("Vertical", 2),
    Sketcher.Constraint("Horizontal", 3),
    Sketcher.Constraint("Equal", 3, 0),
    Sketcher.Constraint("DistanceX", 1, 2, 1, 1, Q("1 in")),
    Sketcher.Constraint("DistanceY", -1, 1, 0, 2, Q("11 in")),
    Sketcher.Constraint("DistanceX", 0, 2, -1, 1, Q("84.5 in")),
])
pad20 = body11.newObject("PartDesign::Pad", "Pad019")
pad20.Profile = sketch24
pad20.Length = Q("0.25 in")
pad20.Reversed = True
body12 = doc.addObject("PartDesign::Body", "Body011")

# Sketch on XY plane
sketch25 = body12.newObject("Sketcher::SketchObject", "Sketch024")
sketch25.AttachmentSupport = (doc.getObject("XY_Plane011"), [""])
sketch25.MapMode = "FlatFace"
sketch25.AttachmentOffset = App.Placement(Vector(0, 0, 114 * 25.4), App.Rotation())
add_polygon(sketch25, [(-2146, 254), (-2146, 229), (-2172, 229), (-2172, 254)])  # lines 0-3
sketch25.addConstraint([
    Sketcher.Constraint("Vertical", 0),
    Sketcher.Constraint("Horizontal", 1),
    Sketcher.Constraint("Vertical", 2),
    Sketcher.Constraint("Horizontal", 3),
    Sketcher.Constraint("Equal", 3, 0),
    Sketcher.Constraint("DistanceX", 1, 2, 1, 1, Q("1 in")),
    Sketcher.Constraint("DistanceY", -1, 1, 0, 2, Q("9 in")),
    Sketcher.Constraint("DistanceX", 0, 2, -1, 1, Q("84.5 in")),
])
pad21 = body12.newObject("PartDesign::Pad", "Pad020")
pad21.Profile = sketch25
pad21.Length = Q("0.25 in")
pad21.Reversed = True

doc.recompute()
